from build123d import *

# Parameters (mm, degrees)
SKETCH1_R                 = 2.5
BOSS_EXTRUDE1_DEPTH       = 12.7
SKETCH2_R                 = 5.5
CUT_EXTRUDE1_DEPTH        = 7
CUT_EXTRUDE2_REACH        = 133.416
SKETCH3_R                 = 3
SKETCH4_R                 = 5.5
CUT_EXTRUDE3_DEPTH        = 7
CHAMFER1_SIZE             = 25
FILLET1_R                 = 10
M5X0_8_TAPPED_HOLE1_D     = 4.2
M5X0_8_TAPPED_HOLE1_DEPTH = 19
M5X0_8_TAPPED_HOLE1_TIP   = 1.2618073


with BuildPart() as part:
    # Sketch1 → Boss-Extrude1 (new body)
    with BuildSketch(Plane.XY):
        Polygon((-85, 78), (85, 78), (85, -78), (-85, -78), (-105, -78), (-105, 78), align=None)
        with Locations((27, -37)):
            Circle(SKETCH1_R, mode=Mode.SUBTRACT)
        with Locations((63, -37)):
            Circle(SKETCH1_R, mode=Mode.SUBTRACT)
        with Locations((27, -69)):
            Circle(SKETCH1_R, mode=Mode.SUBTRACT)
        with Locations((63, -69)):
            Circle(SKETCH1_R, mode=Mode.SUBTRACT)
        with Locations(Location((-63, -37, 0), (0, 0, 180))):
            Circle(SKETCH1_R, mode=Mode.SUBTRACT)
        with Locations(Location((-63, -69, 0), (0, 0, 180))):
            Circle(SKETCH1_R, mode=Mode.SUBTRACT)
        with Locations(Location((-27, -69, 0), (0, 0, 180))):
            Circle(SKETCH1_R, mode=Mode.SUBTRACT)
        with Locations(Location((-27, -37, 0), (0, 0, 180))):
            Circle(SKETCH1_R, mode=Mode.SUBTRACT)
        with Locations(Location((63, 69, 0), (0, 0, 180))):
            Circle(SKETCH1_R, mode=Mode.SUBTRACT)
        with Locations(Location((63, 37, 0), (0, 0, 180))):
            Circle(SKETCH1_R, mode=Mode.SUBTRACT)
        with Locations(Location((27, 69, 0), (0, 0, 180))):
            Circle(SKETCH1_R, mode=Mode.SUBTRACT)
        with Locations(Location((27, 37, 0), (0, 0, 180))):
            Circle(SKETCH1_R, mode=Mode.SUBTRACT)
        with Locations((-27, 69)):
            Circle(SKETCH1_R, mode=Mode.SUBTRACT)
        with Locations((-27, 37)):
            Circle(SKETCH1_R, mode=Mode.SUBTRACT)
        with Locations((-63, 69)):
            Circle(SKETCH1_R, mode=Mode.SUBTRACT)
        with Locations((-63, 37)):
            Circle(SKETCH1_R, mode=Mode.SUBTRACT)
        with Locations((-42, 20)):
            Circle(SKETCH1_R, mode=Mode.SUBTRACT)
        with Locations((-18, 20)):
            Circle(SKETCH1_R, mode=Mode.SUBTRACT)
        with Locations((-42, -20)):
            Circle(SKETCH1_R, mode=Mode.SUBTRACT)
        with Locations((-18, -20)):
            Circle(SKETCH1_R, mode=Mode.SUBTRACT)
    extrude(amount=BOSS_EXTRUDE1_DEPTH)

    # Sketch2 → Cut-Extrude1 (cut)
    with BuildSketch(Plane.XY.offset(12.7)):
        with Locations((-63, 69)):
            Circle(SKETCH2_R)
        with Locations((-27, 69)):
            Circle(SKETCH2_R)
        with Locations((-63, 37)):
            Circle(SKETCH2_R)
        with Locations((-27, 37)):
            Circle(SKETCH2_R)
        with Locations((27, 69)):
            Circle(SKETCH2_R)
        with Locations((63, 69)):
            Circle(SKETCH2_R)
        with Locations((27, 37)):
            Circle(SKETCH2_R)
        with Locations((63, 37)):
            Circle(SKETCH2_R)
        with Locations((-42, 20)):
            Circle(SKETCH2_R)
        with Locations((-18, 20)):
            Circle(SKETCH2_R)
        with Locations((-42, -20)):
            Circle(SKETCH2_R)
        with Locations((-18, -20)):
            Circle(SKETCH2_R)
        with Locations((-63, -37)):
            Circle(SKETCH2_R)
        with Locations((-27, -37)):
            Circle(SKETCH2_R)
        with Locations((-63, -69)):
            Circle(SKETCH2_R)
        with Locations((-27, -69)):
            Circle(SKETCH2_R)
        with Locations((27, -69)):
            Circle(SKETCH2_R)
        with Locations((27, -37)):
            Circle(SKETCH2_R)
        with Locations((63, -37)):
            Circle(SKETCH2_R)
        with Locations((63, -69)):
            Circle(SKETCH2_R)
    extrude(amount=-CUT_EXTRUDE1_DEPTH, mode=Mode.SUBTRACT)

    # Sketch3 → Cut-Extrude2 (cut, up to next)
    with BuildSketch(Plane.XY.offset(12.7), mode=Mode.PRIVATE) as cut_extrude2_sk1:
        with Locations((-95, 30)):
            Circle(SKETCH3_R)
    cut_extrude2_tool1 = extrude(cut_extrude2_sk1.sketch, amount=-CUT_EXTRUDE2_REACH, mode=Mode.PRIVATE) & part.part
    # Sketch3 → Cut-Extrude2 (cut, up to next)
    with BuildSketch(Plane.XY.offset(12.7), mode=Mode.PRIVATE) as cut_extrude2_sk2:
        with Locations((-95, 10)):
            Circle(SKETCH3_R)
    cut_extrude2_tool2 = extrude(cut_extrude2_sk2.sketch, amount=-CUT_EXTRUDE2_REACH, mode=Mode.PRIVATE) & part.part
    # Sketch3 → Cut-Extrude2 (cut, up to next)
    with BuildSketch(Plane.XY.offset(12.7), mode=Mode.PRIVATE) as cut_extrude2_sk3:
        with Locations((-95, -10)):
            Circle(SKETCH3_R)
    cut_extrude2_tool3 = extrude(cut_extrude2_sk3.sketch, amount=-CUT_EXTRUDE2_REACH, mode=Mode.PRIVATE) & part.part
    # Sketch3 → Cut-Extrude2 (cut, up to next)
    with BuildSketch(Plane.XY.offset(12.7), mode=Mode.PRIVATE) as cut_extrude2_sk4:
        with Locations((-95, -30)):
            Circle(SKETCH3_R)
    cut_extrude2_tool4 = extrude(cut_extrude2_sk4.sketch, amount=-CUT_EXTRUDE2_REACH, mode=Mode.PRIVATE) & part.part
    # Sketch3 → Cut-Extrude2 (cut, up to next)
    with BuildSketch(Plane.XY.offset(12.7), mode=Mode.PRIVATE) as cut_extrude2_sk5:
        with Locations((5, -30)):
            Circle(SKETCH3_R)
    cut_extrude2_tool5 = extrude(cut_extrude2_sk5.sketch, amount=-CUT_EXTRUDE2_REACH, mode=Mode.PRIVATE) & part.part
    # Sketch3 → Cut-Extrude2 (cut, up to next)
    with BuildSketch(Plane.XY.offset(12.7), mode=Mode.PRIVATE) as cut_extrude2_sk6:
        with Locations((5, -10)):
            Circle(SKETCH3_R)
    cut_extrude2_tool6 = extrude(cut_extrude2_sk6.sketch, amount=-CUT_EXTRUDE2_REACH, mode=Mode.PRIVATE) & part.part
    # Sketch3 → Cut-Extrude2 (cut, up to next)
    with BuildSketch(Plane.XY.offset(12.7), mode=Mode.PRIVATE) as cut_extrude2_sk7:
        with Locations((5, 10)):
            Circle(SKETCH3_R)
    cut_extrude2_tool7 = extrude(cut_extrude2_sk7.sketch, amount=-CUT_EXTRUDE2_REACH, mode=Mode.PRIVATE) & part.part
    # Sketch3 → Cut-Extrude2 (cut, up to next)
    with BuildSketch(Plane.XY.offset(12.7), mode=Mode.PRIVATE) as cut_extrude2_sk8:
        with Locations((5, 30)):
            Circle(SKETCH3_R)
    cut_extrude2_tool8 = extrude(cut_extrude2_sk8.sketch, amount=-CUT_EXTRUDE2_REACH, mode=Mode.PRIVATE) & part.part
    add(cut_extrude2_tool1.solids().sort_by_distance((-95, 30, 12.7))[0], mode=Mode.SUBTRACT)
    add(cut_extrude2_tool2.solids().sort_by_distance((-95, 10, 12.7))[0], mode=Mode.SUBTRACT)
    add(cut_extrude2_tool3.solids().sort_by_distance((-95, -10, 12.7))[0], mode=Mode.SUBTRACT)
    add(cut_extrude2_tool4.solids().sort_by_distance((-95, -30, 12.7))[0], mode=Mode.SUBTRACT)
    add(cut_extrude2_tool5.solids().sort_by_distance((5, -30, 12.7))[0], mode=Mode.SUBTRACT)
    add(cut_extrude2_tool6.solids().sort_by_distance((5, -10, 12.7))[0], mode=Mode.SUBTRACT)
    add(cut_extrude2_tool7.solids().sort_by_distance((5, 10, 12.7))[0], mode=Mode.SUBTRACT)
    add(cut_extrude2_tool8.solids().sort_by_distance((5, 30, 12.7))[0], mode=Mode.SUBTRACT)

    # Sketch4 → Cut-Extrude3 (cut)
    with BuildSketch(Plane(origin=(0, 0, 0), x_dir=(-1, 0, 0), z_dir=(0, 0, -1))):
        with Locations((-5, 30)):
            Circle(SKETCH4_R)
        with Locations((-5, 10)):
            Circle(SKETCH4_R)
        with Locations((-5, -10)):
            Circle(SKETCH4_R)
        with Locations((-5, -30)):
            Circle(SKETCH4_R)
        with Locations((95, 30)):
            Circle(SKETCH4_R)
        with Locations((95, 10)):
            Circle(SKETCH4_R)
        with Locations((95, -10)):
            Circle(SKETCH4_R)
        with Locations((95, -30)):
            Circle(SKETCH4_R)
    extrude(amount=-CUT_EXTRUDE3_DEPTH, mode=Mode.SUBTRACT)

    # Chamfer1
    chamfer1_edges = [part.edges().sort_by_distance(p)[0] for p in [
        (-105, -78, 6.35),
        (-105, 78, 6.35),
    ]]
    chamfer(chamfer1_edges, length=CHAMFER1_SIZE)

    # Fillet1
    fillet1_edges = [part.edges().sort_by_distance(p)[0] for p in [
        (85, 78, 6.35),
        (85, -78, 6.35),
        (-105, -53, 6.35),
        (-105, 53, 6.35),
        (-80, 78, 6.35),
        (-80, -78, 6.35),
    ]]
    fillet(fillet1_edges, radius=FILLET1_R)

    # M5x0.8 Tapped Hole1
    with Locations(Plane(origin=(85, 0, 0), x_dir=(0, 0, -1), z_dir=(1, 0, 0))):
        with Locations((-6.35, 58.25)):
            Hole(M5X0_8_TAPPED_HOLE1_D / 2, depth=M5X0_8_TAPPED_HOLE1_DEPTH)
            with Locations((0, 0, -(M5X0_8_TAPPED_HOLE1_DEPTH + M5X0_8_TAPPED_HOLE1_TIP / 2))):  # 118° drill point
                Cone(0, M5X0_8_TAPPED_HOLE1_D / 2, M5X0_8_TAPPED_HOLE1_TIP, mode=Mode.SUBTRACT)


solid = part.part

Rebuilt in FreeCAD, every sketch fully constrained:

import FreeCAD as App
import Part
import Sketcher
from FreeCAD import Vector
Q = App.Units.Quantity


def edges_at(feature, points):
    """Names of the edges that pass closest to the given points."""
    edges = feature.Shape.Edges
    near = lambda p: min(range(len(edges)), key=lambda i: edges[i].distToShape(Part.Vertex(*p))[0])
    return sorted({f"Edge{near(p) + 1}" for p in points})

doc = App.newDocument("Part")
body = doc.addObject("PartDesign::Body", "Body")

# Sketch on XY plane
sketch1 = body.newObject("Sketcher::SketchObject", "Sketch")
sketch1.AttachmentSupport = (doc.getObject("XY_Plane"), [""])
sketch1.MapMode = "FlatFace"
sketch1.addGeometry([
    Part.LineSegment(Vector(85, 78, 0), Vector(-105, 78, 0)),  # 0
    Part.LineSegment(Vector(-105, 78, 0), Vector(-105, -78, 0)),  # 1
    Part.LineSegment(Vector(-105, -78, 0), Vector(85, -78, 0)),  # 2
    Part.LineSegment(Vector(85, -78, 0), Vector(85, 78, 0)),  # 3
    Part.Circle(Vector(63, -69, 0), Vector(0, 0, 1), 2.5),  # 4
    Part.Circle(Vector(63, -37, 0), Vector(0, 0, 1), 2.5),  # 5
    Part.Circle(Vector(27, -69, 0), Vector(0, 0, 1), 2.5),  # 6
    Part.Circle(Vector(27, -37, 0), Vector(0, 0, 1), 2.5),  # 7
    Part.Circle(Vector(-27, -69, 0), Vector(0, 0, 1), 2.5),  # 8
    Part.Circle(Vector(-27, -37, 0), Vector(0, 0, 1), 2.5),  # 9
    Part.Circle(Vector(-63, -69, 0), Vector(0, 0, 1), 2.5),  # 10
    Part.Circle(Vector(-63, -37, 0), Vector(0, 0, 1), 2.5),  # 11
    Part.Circle(Vector(-18, -20, 0), Vector(0, 0, 1), 2.5),  # 12
    Part.Circle(Vector(-42, -20, 0), Vector(0, 0, 1), 2.5),  # 13
    Part.Circle(Vector(63, 37, 0), Vector(0, 0, 1), 2.5),  # 14
    Part.Circle(Vector(63, 69, 0), Vector(0, 0, 1), 2.5),  # 15
    Part.Circle(Vector(27, 37, 0), Vector(0, 0, 1), 2.5),  # 16
    Part.Circle(Vector(27, 69, 0), Vector(0, 0, 1), 2.5),  # 17
    Part.Circle(Vector(-18, 20, 0), Vector(0, 0, 1), 2.5),  # 18
    Part.Circle(Vector(-42, 20, 0), Vector(0, 0, 1), 2.5),  # 19
    Part.Circle(Vector(-27, 37, 0), Vector(0, 0, 1), 2.5),  # 20
    Part.Circle(Vector(-27, 69, 0), Vector(0, 0, 1), 2.5),  # 21
    Part.Circle(Vector(-63, 37, 0), Vector(0, 0, 1), 2.5),  # 22
    Part.Circle(Vector(-63, 69, 0), Vector(0, 0, 1), 2.5),  # 23
], False)
sketch1.addConstraint([
    Sketcher.Constraint("Coincident", 0, 2, 1, 1),
    Sketcher.Constraint("Coincident", 1, 2, 2, 1),
    Sketcher.Constraint("Coincident", 2, 2, 3, 1),
    Sketcher.Constraint("Coincident", 3, 2, 0, 1),
    Sketcher.Constraint("Horizontal", 0),
    Sketcher.Constraint("Vertical", 1),
    Sketcher.Constraint("Horizontal", 2),
    Sketcher.Constraint("Vertical", 3),
    Sketcher.Constraint("Equal", 4, 5),
    Sketcher.Constraint("Equal", 5, 6),
    Sketcher.Constraint("Equal", 6, 7),
    Sketcher.Constraint("Equal", 7, 8),
    Sketcher.Constraint("Equal", 8, 9),
    Sketcher.Constraint("Equal", 9, 10),
    Sketcher.Constraint("Equal", 10, 11),
    Sketcher.Constraint("Equal", 11, 12),
    Sketcher.Constraint("Equal", 12, 13),
    Sketcher.Constraint("Equal", 13, 14),
    Sketcher.Constraint("Equal", 14, 15),
    Sketcher.Constraint("Equal", 15, 16),
    Sketcher.Constraint("Equal", 16, 17),
    Sketcher.Constraint("Equal", 17, 18),
    Sketcher.Constraint("Equal", 18, 19),
    Sketcher.Constraint("Equal", 19, 20),
    Sketcher.Constraint("Equal", 20, 21),
    Sketcher.Constraint("Equal", 21, 22),
    Sketcher.Constraint("Equal", 22, 23),
    Sketcher.Constraint("Symmetric", 11, 3, 14, 3, -1, 1),
    Sketcher.Constraint("Symmetric", 10, 3, 15, 3, -1, 1),
    Sketcher.Constraint("Symmetric", 9, 3, 16, 3, -1, 1),
    Sketcher.Constraint("Symmetric", 8, 3, 17, 3, -1, 1),
    Sketcher.Constraint("Symmetric", 7, 3, 20, 3, -1, 1),
    Sketcher.Constraint("Symmetric", 6, 3, 21, 3, -1, 1),
    Sketcher.Constraint("Symmetric", 5, 3, 22, 3, -1, 1),
    Sketcher.Constraint("Symmetric", 4, 3, 23, 3, -1, 1),
    Sketcher.Constraint("Symmetric", 6, 3, 8, 3, -2),
    Sketcher.Constraint("Symmetric", 7, 3, 9, 3, -2),
    Sketcher.Constraint("Symmetric", 4, 3, 10, 3, -2),
    Sketcher.Constraint("Symmetric", 5, 3, 11, 3, -2),
    Sketcher.Constraint("Symmetric", 12, 3, 18, 3, -1),
    Sketcher.Constraint("Symmetric", 13, 3, 19, 3, -1),
    Sketcher.Constraint("Horizontal", 4, 3, 6, 3),
    Sketcher.Constraint("Horizontal", 5, 3, 7, 3),
    Sketcher.Constraint("Horizontal", 12, 3, 13, 3),
    Sketcher.Constraint("Vertical", 4, 3, 5, 3),
    Sketcher.Constraint("Vertical", 6, 3, 7, 3),
    Sketcher.Constraint("Diameter", 4, Q("5 mm")),
    Sketcher.Constraint("DistanceX", 0, 2, 0, 1, Q("190 mm")),
    Sketcher.Constraint("DistanceY", 1, 2, 1, 1, Q("156 mm")),
    Sketcher.Constraint("DistanceX", -1, 1, 4, 3, Q("63 mm")),
    Sketcher.Constraint("DistanceY", 4, 3, -1, 1, Q("69 mm")),
    Sketcher.Constraint("DistanceY", 5, 3, -1, 1, Q("37 mm")),
    Sketcher.Constraint("DistanceX", -1, 1, 6, 3, Q("27 mm")),
    Sketcher.Constraint("DistanceX", 12, 3, -1, 1, Q("18 mm")),
    Sketcher.Constraint("DistanceY", 12, 3, -1, 1, Q("20 mm")),
    Sketcher.Constraint("DistanceX", 13, 3, -1, 1, Q("42 mm")),
    Sketcher.Constraint("DistanceX", 0, 2, -1, 1, Q("105 mm")),
    Sketcher.Constraint("DistanceY", -1, 1, 0, 2, Q("78 mm")),
])
pad1 = body.newObject("PartDesign::Pad", "Pad")
pad1.Profile = sketch1
pad1.Length = 12.7

# Sketch on XY plane
sketch2 = body.newObject("Sketcher::SketchObject", "Sketch001")
sketch2.AttachmentSupport = (doc.getObject("XY_Plane"), [""])
sketch2.MapMode = "FlatFace"
sketch2.AttachmentOffset = App.Placement(Vector(0, 0, 12.7), App.Rotation())
sketch2.addGeometry([
    Part.Circle(Vector(-63, 69, 0), Vector(0, 0, 1), 6),  # 0
    Part.Circle(Vector(-27, 69, 0), Vector(0, 0, 1), 6),  # 1
    Part.Circle(Vector(-63, 37, 0), Vector(0, 0, 1), 6),  # 2
    Part.Circle(Vector(-27, 37, 0), Vector(0, 0, 1), 6),  # 3
    Part.Circle(Vector(27, 69, 0), Vector(0, 0, 1), 6),  # 4
    Part.Circle(Vector(63, 69, 0), Vector(0, 0, 1), 6),  # 5
    Part.Circle(Vector(27, 37, 0), Vector(0, 0, 1), 6),  # 6
    Part.Circle(Vector(63, 37, 0), Vector(0, 0, 1), 6),  # 7
    Part.Circle(Vector(-42, 20, 0), Vector(0, 0, 1), 6),  # 8
    Part.Circle(Vector(-18, 20, 0), Vector(0, 0, 1), 6),  # 9
    Part.Circle(Vector(-42, -20, 0), Vector(0, 0, 1), 6),  # 10
    Part.Circle(Vector(-18, -20, 0), Vector(0, 0, 1), 6),  # 11
    Part.Circle(Vector(-63, -37, 0), Vector(0, 0, 1), 6),  # 12
    Part.Circle(Vector(-27, -37, 0), Vector(0, 0, 1), 6),  # 13
    Part.Circle(Vector(-63, -69, 0), Vector(0, 0, 1), 6),  # 14
    Part.Circle(Vector(-27, -69, 0), Vector(0, 0, 1), 6),  # 15
    Part.Circle(Vector(27, -69, 0), Vector(0, 0, 1), 6),  # 16
    Part.Circle(Vector(27, -37, 0), Vector(0, 0, 1), 6),  # 17
    Part.Circle(Vector(63, -37, 0), Vector(0, 0, 1), 6),  # 18
    Part.Circle(Vector(63, -69, 0), Vector(0, 0, 1), 6),  # 19
], False)
sketch2.addConstraint([
    Sketcher.Constraint("Equal", 0, 1),
    Sketcher.Constraint("Equal", 1, 2),
    Sketcher.Constraint("Equal", 2, 3),
    Sketcher.Constraint("Equal", 3, 4),
    Sketcher.Constraint("Equal", 4, 5),
    Sketcher.Constraint("Equal", 5, 6),
    Sketcher.Constraint("Equal", 6, 7),
    Sketcher.Constraint("Equal", 7, 8),
    Sketcher.Constraint("Equal", 8, 9),
    Sketcher.Constraint("Equal", 9, 10),
    Sketcher.Constraint("Equal", 10, 11),
    Sketcher.Constraint("Equal", 11, 12),
    Sketcher.Constraint("Equal", 12, 13),
    Sketcher.Constraint("Equal", 13, 14),
    Sketcher.Constraint("Equal", 14, 15),
    Sketcher.Constraint("Equal", 15, 16),
    Sketcher.Constraint("Equal", 16, 17),
    Sketcher.Constraint("Equal", 17, 18),
    Sketcher.Constraint("Equal", 18, 19),
    Sketcher.Constraint("Symmetric", 7, 3, 12, 3, -1, 1),
    Sketcher.Constraint("Symmetric", 6, 3, 13, 3, -1, 1),
    Sketcher.Constraint("Symmetric", 5, 3, 14, 3, -1, 1),
    Sketcher.Constraint("Symmetric", 4, 3, 15, 3, -1, 1),
    Sketcher.Constraint("Symmetric", 1, 3, 16, 3, -1, 1),
    Sketcher.Constraint("Symmetric", 3, 3, 17, 3, -1, 1),
    Sketcher.Constraint("Symmetric", 2, 3, 18, 3, -1, 1),
    Sketcher.Constraint("Symmetric", 0, 3, 19, 3, -1, 1),
    Sketcher.Constraint("Symmetric", 1, 3, 4, 3, -2),
    Sketcher.Constraint("Symmetric", 0, 3, 5, 3, -2),
    Sketcher.Constraint("Symmetric", 3, 3, 6, 3, -2),
    Sketcher.Constraint("Symmetric", 2, 3, 7, 3, -2),
    Sketcher.Constraint("Symmetric", 8, 3, 10, 3, -1),
    Sketcher.Constraint("Symmetric", 9, 3, 11, 3, -1),
    Sketcher.Constraint("Horizontal", 0, 3, 1, 3),
    Sketcher.Constraint("Horizontal", 2, 3, 3, 3),
    Sketcher.Constraint("Horizontal", 8, 3, 9, 3),
    Sketcher.Constraint("Vertical", 0, 3, 2, 3),
    Sketcher.Constraint("Vertical", 1, 3, 3, 3),
    Sketcher.Constraint("Diameter", 0, Q("11 mm")),
    Sketcher.Constraint("DistanceX", 0, 3, -1, 1, Q("63 mm")),
    Sketcher.Constraint("DistanceY", -1, 1, 0, 3, Q("69 mm")),
    Sketcher.Constraint("DistanceX", 1, 3, -1, 1, Q("27 mm")),
    Sketcher.Constraint("DistanceY", -1, 1, 2, 3, Q("37 mm")),
    Sketcher.Constraint("DistanceX", 8, 3, -1, 1, Q("42 mm")),
    Sketcher.Constraint("DistanceY", -1, 1, 8, 3, Q("20 mm")),
    Sketcher.Constraint("DistanceX", 9, 3, -1, 1, Q("18 mm")),
])
pocket1 = body.newObject("PartDesign::Pocket", "Pocket")
pocket1.Profile = sketch2
pocket1.Length = 7

# Sketch on XY plane
sketch3 = body.newObject("Sketcher::SketchObject", "Sketch002")
sketch3.AttachmentSupport = (doc.getObject("XY_Plane"), [""])
sketch3.MapMode = "FlatFace"
sketch3.AttachmentOffset = App.Placement(Vector(0, 0, 12.7), App.Rotation())
sketch3.addGeometry(Part.Circle(Vector(-95, 30, 0), Vector(0, 0, 1), 3), False)
sketch3.addConstraint([
    Sketcher.Constraint("Diameter", 0, Q("6 mm")),
    Sketcher.Constraint("DistanceX", 0, 3, -1, 1, Q("95 mm")),
    Sketcher.Constraint("DistanceY", -1, 1, 0, 3, Q("30 mm")),
])
pocket2 = body.newObject("PartDesign::Pocket", "Pocket001")
pocket2.Profile = sketch3
pocket2.Type = "UpToFirst"

# Sketch on XY plane
sketch4 = body.newObject("Sketcher::SketchObject", "Sketch003")
sketch4.AttachmentSupport = (doc.getObject("XY_Plane"), [""])
sketch4.MapMode = "FlatFace"
sketch4.AttachmentOffset = App.Placement(Vector(0, 0, 12.7), App.Rotation())
sketch4.addGeometry(Part.Circle(Vector(-95, 10, 0), Vector(0, 0, 1), 3), False)
sketch4.addConstraint([
    Sketcher.Constraint("Diameter", 0, Q("6 mm")),
    Sketcher.Constraint("DistanceX", 0, 3, -1, 1, Q("95 mm")),
    Sketcher.Constraint("DistanceY", -1, 1, 0, 3, Q("10 mm")),
])
pocket3 = body.newObject("PartDesign::Pocket", "Pocket002")
pocket3.Profile = sketch4
pocket3.Type = "UpToFirst"

# Sketch on XY plane
sketch5 = body.newObject("Sketcher::SketchObject", "Sketch004")
sketch5.AttachmentSupport = (doc.getObject("XY_Plane"), [""])
sketch5.MapMode = "FlatFace"
sketch5.AttachmentOffset = App.Placement(Vector(0, 0, 12.7), App.Rotation())
sketch5.addGeometry(Part.Circle(Vector(-95, -10, 0), Vector(0, 0, 1), 3), False)
sketch5.addConstraint([
    Sketcher.Constraint("Diameter", 0, Q("6 mm")),
    Sketcher.Constraint("DistanceX", 0, 3, -1, 1, Q("95 mm")),
    Sketcher.Constraint("DistanceY", 0, 3, -1, 1, Q("10 mm")),
])
pocket4 = body.newObject("PartDesign::Pocket", "Pocket003")
pocket4.Profile = sketch5
pocket4.Type = "UpToFirst"

# Sketch on XY plane
sketch6 = body.newObject("Sketcher::SketchObject", "Sketch005")
sketch6.AttachmentSupport = (doc.getObject("XY_Plane"), [""])
sketch6.MapMode = "FlatFace"
sketch6.AttachmentOffset = App.Placement(Vector(0, 0, 12.7), App.Rotation())
sketch6.addGeometry(Part.Circle(Vector(-95, -30, 0), Vector(0, 0, 1), 3), False)
sketch6.addConstraint([
    Sketcher.Constraint("Diameter", 0, Q("6 mm")),
    Sketcher.Constraint("DistanceX", 0, 3, -1, 1, Q("95 mm")),
    Sketcher.Constraint("DistanceY", 0, 3, -1, 1, Q("30 mm")),
])
pocket5 = body.newObject("PartDesign::Pocket", "Pocket004")
pocket5.Profile = sketch6
pocket5.Type = "UpToFirst"

# Sketch on XY plane
sketch7 = body.newObject("Sketcher::SketchObject", "Sketch006")
sketch7.AttachmentSupport = (doc.getObject("XY_Plane"), [""])
sketch7.MapMode = "FlatFace"
sketch7.AttachmentOffset = App.Placement(Vector(0, 0, 12.7), App.Rotation())
sketch7.addGeometry(Part.Circle(Vector(5, -30, 0), Vector(0, 0, 1), 3), False)
sketch7.addConstraint([
    Sketcher.Constraint("Diameter", 0, Q("6 mm")),
    Sketcher.Constraint("DistanceX", -1, 1, 0, 3, Q("5 mm")),
    Sketcher.Constraint("DistanceY", 0, 3, -1, 1, Q("30 mm")),
])
pocket6 = body.newObject("PartDesign::Pocket", "Pocket005")
pocket6.Profile = sketch7
pocket6.Type = "UpToFirst"

# Sketch on XY plane
sketch8 = body.newObject("Sketcher::SketchObject", "Sketch007")
sketch8.AttachmentSupport = (doc.getObject("XY_Plane"), [""])
sketch8.MapMode = "FlatFace"
sketch8.AttachmentOffset = App.Placement(Vector(0, 0, 12.7), App.Rotation())
sketch8.addGeometry(Part.Circle(Vector(5, -10, 0), Vector(0, 0, 1), 3), False)
sketch8.addConstraint([
    Sketcher.Constraint("Diameter", 0, Q("6 mm")),
    Sketcher.Constraint("DistanceX", -1, 1, 0, 3, Q("5 mm")),
    Sketcher.Constraint("DistanceY", 0, 3, -1, 1, Q("10 mm")),
])
pocket7 = body.newObject("PartDesign::Pocket", "Pocket006")
pocket7.Profile = sketch8
pocket7.Type = "UpToFirst"

# Sketch on XY plane
sketch9 = body.newObject("Sketcher::SketchObject", "Sketch008")
sketch9.AttachmentSupport = (doc.getObject("XY_Plane"), [""])
sketch9.MapMode = "FlatFace"
sketch9.AttachmentOffset = App.Placement(Vector(0, 0, 12.7), App.Rotation())
sketch9.addGeometry(Part.Circle(Vector(5, 10, 0), Vector(0, 0, 1), 3), False)
sketch9.addConstraint([
    Sketcher.Constraint("Diameter", 0, Q("6 mm")),
    Sketcher.Constraint("DistanceX", -1, 1, 0, 3, Q("5 mm")),
    Sketcher.Constraint("DistanceY", -1, 1, 0, 3, Q("10 mm")),
])
pocket8 = body.newObject("PartDesign::Pocket", "Pocket007")
pocket8.Profile = sketch9
pocket8.Type = "UpToFirst"

# Sketch on XY plane
sketch10 = body.newObject("Sketcher::SketchObject", "Sketch009")
sketch10.AttachmentSupport = (doc.getObject("XY_Plane"), [""])
sketch10.MapMode = "FlatFace"
sketch10.AttachmentOffset = App.Placement(Vector(0, 0, 12.7), App.Rotation())
sketch10.addGeometry(Part.Circle(Vector(5, 30, 0), Vector(0, 0, 1), 3), False)
sketch10.addConstraint([
    Sketcher.Constraint("Diameter", 0, Q("6 mm")),
    Sketcher.Constraint("DistanceX", -1, 1, 0, 3, Q("5 mm")),
    Sketcher.Constraint("DistanceY", -1, 1, 0, 3, Q("30 mm")),
])
pocket9 = body.newObject("PartDesign::Pocket", "Pocket008")
pocket9.Profile = sketch10
pocket9.Type = "UpToFirst"

# Sketch on XY plane
sketch11 = body.newObject("Sketcher::SketchObject", "Sketch010")
sketch11.AttachmentSupport = (doc.getObject("XY_Plane"), [""])
sketch11.MapMode = "FlatFace"
sketch11.addGeometry([
    Part.Circle(Vector(5, 30, 0), Vector(0, 0, 1), 6),  # 0
    Part.Circle(Vector(5, 10, 0), Vector(0, 0, 1), 6),  # 1
    Part.Circle(Vector(5, -10, 0), Vector(0, 0, 1), 6),  # 2
    Part.Circle(Vector(5, -30, 0), Vector(0, 0, 1), 6),  # 3
    Part.Circle(Vector(-95, 30, 0), Vector(0, 0, 1), 6),  # 4
    Part.Circle(Vector(-95, 10, 0), Vector(0, 0, 1), 6),  # 5
    Part.Circle(Vector(-95, -10, 0), Vector(0, 0, 1), 6),  # 6
    Part.Circle(Vector(-95, -30, 0), Vector(0, 0, 1), 6),  # 7
], False)
sketch11.addConstraint([
    Sketcher.Constraint("Equal", 0, 1),
    Sketcher.Constraint("Equal", 1, 2),
    Sketcher.Constraint("Equal", 2, 3),
    Sketcher.Constraint("Equal", 3, 4),
    Sketcher.Constraint("Equal", 4, 5),
    Sketcher.Constraint("Equal", 5, 6),
    Sketcher.Constraint("Equal", 6, 7),
    Sketcher.Constraint("Symmetric", 1, 3, 2, 3, -1),
    Sketcher.Constraint("Symmetric", 0, 3, 3, 3, -1),
    Sketcher.Constraint("Symmetric", 5, 3, 6, 3, -1),
    Sketcher.Constraint("Symmetric", 4, 3, 7, 3, -1),
    Sketcher.Constraint("Horizontal", 0, 3, 4, 3),
    Sketcher.Constraint("Horizontal", 1, 3, 5, 3),
    Sketcher.Constraint("Vertical", 0, 3, 1, 3),
    Sketcher.Constraint("Vertical", 4, 3, 5, 3),
    Sketcher.Constraint("Diameter", 0, Q("11 mm")),
    Sketcher.Constraint("DistanceX", -1, 1, 0, 3, Q("5 mm")),
    Sketcher.Constraint("DistanceY", -1, 1, 0, 3, Q("30 mm")),
    Sketcher.Constraint("DistanceY", -1, 1, 1, 3, Q("10 mm")),
    Sketcher.Constraint("DistanceX", 4, 3, -1, 1, Q("95 mm")),
])
pocket10 = body.newObject("PartDesign::Pocket", "Pocket009")
pocket10.Profile = sketch11
pocket10.Length = 7
pocket10.Reversed = True
doc.recompute()

chamfer = body.newObject("PartDesign::Chamfer", "Chamfer")
chamfer.Base = (pocket10, edges_at(pocket10, [(-105, -78, 6.35), (-105, 78, 6.35)]))
chamfer.Size = 25
doc.recompute()

fillet = body.newObject("PartDesign::Fillet", "Fillet")
fillet.Base = (chamfer, edges_at(chamfer, [
    (85, 78, 6.35),
    (85, -78, 6.35),
    (-105, -53, 6.35),
    (-105, 53, 6.35),
    (-80, 78, 6.35),
    (-80, -78, 6.35),
]))
fillet.Radius = 10

# Sketch on YZ plane
sketch12 = body.newObject("Sketcher::SketchObject", "Sketch011")
sketch12.AttachmentSupport = (doc.getObject("YZ_Plane"), [""])
sketch12.MapMode = "FlatFace"
sketch12.AttachmentOffset = App.Placement(Vector(0, 0, 85), App.Rotation())
sketch12.addGeometry(Part.Circle(Vector(58.2, 6.3, 0), Vector(0, 0, 1), 2.1), False)
sketch12.addConstraint([
    Sketcher.Constraint("Diameter", 0, Q("4.2 mm")),
    Sketcher.Constraint("DistanceX", -1, 1, 0, 3, Q("58.25 mm")),
    Sketcher.Constraint("DistanceY", -1, 1, 0, 3, Q("6.35 mm")),
])
doc.recompute()
hole = body.newObject("PartDesign::Hole", "Hole")
hole.Profile = sketch12
hole.ThreadType = "None"
hole.Diameter = 4.2
hole.DepthType = "Dimension"
hole.Depth = 19
hole.DrillPoint = "Angled"
hole.DrillPointAngle = 118

doc.recompute()
